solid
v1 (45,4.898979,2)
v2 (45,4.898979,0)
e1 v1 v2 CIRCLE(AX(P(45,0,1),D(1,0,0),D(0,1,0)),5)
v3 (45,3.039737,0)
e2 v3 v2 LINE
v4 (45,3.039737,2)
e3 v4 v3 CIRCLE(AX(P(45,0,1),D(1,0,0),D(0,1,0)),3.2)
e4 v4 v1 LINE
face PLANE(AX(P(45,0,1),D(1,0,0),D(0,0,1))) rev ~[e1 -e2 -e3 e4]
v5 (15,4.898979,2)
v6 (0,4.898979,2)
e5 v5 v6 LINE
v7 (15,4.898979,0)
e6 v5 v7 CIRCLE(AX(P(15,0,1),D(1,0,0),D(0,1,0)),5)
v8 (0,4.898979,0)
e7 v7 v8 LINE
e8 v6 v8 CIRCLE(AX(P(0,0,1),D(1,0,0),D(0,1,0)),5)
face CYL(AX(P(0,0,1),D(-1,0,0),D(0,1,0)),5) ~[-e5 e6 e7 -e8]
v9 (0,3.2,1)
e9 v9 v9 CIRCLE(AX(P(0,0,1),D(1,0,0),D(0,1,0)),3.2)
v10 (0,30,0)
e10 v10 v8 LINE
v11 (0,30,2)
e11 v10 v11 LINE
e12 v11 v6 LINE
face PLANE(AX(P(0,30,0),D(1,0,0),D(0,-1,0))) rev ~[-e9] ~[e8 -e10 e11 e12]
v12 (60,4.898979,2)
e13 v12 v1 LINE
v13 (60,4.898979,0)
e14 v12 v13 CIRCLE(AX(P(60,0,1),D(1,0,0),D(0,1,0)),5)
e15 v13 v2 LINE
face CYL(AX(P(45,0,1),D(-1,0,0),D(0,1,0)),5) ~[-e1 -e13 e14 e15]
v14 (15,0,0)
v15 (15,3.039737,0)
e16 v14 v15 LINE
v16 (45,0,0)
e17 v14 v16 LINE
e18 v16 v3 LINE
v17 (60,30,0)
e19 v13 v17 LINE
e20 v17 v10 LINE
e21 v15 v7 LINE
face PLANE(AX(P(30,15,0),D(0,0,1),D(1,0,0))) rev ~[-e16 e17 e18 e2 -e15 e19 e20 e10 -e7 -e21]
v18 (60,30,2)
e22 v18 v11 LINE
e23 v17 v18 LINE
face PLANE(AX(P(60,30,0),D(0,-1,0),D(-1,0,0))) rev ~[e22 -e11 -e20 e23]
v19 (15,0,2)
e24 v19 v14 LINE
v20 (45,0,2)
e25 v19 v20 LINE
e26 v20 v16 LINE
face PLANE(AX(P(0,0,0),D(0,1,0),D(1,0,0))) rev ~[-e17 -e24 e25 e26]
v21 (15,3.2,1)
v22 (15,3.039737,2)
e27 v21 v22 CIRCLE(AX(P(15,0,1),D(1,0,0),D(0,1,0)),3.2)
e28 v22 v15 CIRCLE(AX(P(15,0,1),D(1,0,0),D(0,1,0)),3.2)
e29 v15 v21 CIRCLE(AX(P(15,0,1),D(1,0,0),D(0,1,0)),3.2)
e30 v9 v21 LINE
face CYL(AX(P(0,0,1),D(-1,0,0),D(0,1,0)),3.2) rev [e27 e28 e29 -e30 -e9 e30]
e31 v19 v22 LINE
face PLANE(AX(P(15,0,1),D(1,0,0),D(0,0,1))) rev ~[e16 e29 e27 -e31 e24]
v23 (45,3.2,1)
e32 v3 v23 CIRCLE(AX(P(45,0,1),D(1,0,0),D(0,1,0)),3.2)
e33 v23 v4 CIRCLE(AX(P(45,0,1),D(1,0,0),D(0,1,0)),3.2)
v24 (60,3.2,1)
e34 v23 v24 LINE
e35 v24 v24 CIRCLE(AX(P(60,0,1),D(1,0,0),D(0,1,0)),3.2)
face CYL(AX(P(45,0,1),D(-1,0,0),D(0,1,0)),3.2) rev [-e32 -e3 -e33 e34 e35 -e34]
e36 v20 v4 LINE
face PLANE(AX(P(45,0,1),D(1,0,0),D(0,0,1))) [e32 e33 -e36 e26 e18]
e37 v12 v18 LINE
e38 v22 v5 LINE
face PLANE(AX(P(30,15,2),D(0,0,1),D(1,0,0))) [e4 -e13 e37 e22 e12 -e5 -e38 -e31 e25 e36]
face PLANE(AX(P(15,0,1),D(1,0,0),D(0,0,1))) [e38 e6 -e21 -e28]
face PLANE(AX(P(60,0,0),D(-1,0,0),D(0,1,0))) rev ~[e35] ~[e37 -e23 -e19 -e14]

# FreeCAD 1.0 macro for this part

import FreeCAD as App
import Part
import Sketcher

V = App.Vector
Q = App.Units.Quantity

doc = App.newDocument("Part")
body = doc.addObject("PartDesign::Body", "Body")

sketch1 = body.newObject("Sketcher::SketchObject", "Sketch")
sketch1.AttachmentSupport = (doc.getObject("XY_Plane"), [""])
sketch1.MapMode = "FlatFace"
sketch1.addGeometry(Part.LineSegment(V(0, 30, 0), V(0, 0, 0)), False)
sketch1.addGeometry(Part.LineSegment(V(0, 0, 0), V(60, 0, 0)), False)
sketch1.addGeometry(Part.LineSegment(V(60, 0, 0), V(60, 30, 0)), False)
sketch1.addGeometry(Part.LineSegment(V(60, 30, 0), V(0, 30, 0)), False)
sketch1.addConstraint(Sketcher.Constraint("Coincident", 0, 2, 1, 1))
sketch1.addConstraint(Sketcher.Constraint("Coincident", 1, 2, 2, 1))
sketch1.addConstraint(Sketcher.Constraint("Coincident", 2, 2, 3, 1))
sketch1.addConstraint(Sketcher.Constraint("Coincident", 3, 2, 0, 1))
sketch1.addConstraint(Sketcher.Constraint("Vertical", 0))
sketch1.addConstraint(Sketcher.Constraint("Horizontal", 1))
sketch1.addConstraint(Sketcher.Constraint("Vertical", 2))
sketch1.addConstraint(Sketcher.Constraint("Horizontal", 3))
sketch1.addConstraint(Sketcher.Constraint("Coincident", 0, 2, -1, 1))
sketch1.addConstraint(Sketcher.Constraint("DistanceX", 1, 1, 1, 2, Q("60 mm")))
sketch1.addConstraint(Sketcher.Constraint("DistanceY", 0, 2, 0, 1, Q("30 mm")))
pad1 = body.newObject("PartDesign::Pad", "Pad")
pad1.Profile = sketch1
pad1.Length = 2

sketch2 = body.newObject("Sketcher::SketchObject", "Sketch001")
sketch2.AttachmentSupport = (doc.getObject("YZ_Plane"), [""])
sketch2.MapMode = "FlatFace"
sketch2.addGeometry(Part.Circle(V(0, 1, 0), V(0, 0, 1), 5), False)
sketch2.addConstraint(Sketcher.Constraint("PointOnObject", 0, 3, -2))
sketch2.addConstraint(Sketcher.Constraint("Diameter", 0, Q("10 mm")))
sketch2.addConstraint(Sketcher.Constraint("DistanceY", -1, 1, 0, 3, Q("1 mm")))
pad2 = body.newObject("PartDesign::Pad", "Pad001")
pad2.Profile = sketch2
pad2.Length = 15

sketch3 = body.newObject("Sketcher::SketchObject", "Sketch002")
sketch3.AttachmentSupport = (doc.getObject("YZ_Plane"), [""])
sketch3.MapMode = "FlatFace"
sketch3.AttachmentOffset = App.Placement(V(0, 0, 45), App.Rotation())
sketch3.addGeometry(Part.Circle(V(0, 1, 0), V(0, 0, 1), 5), False)
sketch3.addConstraint(Sketcher.Constraint("PointOnObject", 0, 3, -2))
sketch3.addConstraint(Sketcher.Constraint("Diameter", 0, Q("10 mm")))
sketch3.addConstraint(Sketcher.Constraint("DistanceY", -1, 1, 0, 3, Q("1 mm")))
pad3 = body.newObject("PartDesign::Pad", "Pad002")
pad3.Profile = sketch3
pad3.Length = 15

sketch4 = body.newObject("Sketcher::SketchObject", "Sketch003")
sketch4.AttachmentSupport = (doc.getObject("YZ_Plane"), [""])
sketch4.MapMode = "FlatFace"
sketch4.addGeometry(Part.Circle(V(0, 1, 0), V(0, 0, 1), 3.2), False)
sketch4.addConstraint(Sketcher.Constraint("PointOnObject", 0, 3, -2))
sketch4.addConstraint(Sketcher.Constraint("Diameter", 0, Q("6.4 mm")))
sketch4.addConstraint(Sketcher.Constraint("DistanceY", -1, 1, 0, 3, Q("1 mm")))
pocket1 = body.newObject("PartDesign::Pocket", "Pocket")
pocket1.Profile = sketch4
pocket1.Length = 15
pocket1.Reversed = True

sketch5 = body.newObject("Sketcher::SketchObject", "Sketch004")
sketch5.AttachmentSupport = (doc.getObject("YZ_Plane"), [""])
sketch5.MapMode = "FlatFace"
sketch5.AttachmentOffset = App.Placement(V(0, 0, 45), App.Rotation())
sketch5.addGeometry(Part.Circle(V(0, 1, 0), V(0, 0, 1), 3.2), False)
sketch5.addConstraint(Sketcher.Constraint("PointOnObject", 0, 3, -2))
sketch5.addConstraint(Sketcher.Constraint("Diameter", 0, Q("6.4 mm")))
sketch5.addConstraint(Sketcher.Constraint("DistanceY", -1, 1, 0, 3, Q("1 mm")))
pocket2 = body.newObject("PartDesign::Pocket", "Pocket001")
pocket2.Profile = sketch5
pocket2.Length = 15
pocket2.Reversed = True

doc.recompute()
